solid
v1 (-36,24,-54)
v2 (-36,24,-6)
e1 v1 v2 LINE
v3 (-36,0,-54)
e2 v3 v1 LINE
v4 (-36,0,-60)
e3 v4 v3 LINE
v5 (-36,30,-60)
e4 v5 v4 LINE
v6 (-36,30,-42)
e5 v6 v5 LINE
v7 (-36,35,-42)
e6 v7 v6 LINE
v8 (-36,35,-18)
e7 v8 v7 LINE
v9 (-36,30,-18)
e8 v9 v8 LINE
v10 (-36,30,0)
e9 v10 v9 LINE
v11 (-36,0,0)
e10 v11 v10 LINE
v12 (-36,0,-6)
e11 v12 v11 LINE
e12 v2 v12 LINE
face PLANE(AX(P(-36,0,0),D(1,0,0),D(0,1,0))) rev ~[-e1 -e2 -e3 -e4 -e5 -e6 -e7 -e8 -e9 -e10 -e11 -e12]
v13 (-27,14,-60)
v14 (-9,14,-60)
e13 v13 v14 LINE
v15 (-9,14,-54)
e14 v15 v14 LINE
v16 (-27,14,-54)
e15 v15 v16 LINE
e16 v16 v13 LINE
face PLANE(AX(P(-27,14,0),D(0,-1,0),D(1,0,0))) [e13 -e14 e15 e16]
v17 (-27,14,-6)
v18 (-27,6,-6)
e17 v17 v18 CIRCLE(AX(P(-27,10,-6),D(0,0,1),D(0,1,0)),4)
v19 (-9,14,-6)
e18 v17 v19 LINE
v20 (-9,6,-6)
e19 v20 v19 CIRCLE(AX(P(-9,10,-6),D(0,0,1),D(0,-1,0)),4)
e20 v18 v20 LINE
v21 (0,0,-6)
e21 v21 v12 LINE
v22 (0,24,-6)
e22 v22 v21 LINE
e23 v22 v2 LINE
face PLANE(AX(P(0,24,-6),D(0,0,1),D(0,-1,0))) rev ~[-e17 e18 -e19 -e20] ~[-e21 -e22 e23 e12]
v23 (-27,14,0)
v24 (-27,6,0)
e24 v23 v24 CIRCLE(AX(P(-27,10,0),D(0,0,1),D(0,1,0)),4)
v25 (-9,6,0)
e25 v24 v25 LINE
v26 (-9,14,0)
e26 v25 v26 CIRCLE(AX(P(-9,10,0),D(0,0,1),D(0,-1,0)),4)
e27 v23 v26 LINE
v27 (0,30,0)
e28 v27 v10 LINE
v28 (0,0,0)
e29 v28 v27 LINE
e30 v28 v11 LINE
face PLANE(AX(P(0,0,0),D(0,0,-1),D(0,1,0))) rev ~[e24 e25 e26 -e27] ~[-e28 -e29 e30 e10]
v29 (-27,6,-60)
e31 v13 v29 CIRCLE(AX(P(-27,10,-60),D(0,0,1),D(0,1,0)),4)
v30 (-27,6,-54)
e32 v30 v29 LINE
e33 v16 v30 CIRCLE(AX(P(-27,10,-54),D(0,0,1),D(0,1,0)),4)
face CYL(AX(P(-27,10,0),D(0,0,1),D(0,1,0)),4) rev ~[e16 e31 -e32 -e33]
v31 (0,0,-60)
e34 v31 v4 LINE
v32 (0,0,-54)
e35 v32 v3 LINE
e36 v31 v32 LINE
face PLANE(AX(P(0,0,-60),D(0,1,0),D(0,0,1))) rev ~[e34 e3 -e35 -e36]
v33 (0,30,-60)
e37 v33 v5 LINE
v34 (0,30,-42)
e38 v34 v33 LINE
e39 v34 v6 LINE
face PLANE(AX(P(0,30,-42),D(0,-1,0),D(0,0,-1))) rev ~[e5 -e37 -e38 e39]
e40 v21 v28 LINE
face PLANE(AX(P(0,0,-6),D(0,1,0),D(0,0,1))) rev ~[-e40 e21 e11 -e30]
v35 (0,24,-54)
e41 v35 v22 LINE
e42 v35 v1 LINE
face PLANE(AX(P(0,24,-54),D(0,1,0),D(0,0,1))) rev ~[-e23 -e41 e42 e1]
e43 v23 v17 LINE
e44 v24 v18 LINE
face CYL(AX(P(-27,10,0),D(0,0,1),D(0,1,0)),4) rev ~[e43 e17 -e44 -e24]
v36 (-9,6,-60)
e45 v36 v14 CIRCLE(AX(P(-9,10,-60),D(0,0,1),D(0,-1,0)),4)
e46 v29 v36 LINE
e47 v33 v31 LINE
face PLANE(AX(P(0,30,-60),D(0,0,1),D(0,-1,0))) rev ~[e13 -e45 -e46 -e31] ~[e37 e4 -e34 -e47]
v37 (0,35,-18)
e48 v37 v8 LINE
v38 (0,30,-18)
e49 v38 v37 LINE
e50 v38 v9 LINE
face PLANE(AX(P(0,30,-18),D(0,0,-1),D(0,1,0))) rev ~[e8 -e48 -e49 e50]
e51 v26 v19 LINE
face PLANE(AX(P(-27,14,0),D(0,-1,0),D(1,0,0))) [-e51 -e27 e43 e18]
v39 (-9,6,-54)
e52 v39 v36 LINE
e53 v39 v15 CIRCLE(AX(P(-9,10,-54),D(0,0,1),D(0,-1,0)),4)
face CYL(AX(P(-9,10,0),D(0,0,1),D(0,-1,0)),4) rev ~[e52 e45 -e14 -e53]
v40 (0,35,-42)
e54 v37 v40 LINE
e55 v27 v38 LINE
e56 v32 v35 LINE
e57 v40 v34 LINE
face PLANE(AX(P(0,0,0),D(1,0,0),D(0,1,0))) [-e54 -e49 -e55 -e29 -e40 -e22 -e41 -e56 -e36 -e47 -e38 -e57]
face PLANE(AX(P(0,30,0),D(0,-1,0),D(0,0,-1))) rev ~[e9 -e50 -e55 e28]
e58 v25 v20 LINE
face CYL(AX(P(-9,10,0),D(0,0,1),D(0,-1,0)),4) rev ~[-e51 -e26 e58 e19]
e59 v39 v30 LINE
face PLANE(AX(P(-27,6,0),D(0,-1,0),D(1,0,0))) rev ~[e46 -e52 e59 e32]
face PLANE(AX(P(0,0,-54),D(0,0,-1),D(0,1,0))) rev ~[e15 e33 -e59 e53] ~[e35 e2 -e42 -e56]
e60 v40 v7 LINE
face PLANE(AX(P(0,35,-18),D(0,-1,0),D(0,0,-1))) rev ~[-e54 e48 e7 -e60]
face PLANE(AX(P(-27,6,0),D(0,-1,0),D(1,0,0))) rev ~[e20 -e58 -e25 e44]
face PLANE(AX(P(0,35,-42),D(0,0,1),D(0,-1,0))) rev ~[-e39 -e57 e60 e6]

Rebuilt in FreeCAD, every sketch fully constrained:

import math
import FreeCAD as App
import Part
import Sketcher

V = App.Vector
Q = App.Units.Quantity


def add_polygon(sketch, points):
    """Adds a closed chain of lines whose ends are joined by coincident constraints."""
    first, n = sketch.GeometryCount, len(points)
    for a, b in zip(points, points[1:] + points[:1]):
        sketch.addGeometry(Part.LineSegment(App.Vector(*a, 0), App.Vector(*b, 0)), False)
    for i in range(n):
        sketch.addConstraint(Sketcher.Constraint("Coincident", first + i, 2, first + (i + 1) % n, 1))

doc = App.newDocument("Part")
body = doc.addObject("PartDesign::Body", "Body")

sketch1 = body.newObject("Sketcher::SketchObject", "Sketch")
sketch1.AttachmentSupport = (doc.getObject("YZ_Plane"), [""])
sketch1.MapMode = "FlatFace"
add_polygon(sketch1, [(30, 0), (0, 0), (0, -6), (24, -6), (24, -54), (0, -54), (0, -60), (30, -60), (30, -42), (35, -42), (35, -18), (30, -18)])
sketch1.addConstraint([
    Sketcher.Constraint("Horizontal", 0),
    Sketcher.Constraint("Vertical", 1),
    Sketcher.Constraint("Horizontal", 2),
    Sketcher.Constraint("Vertical", 3),
    Sketcher.Constraint("Horizontal", 4),
    Sketcher.Constraint("Vertical", 5),
    Sketcher.Constraint("Horizontal", 6),
    Sketcher.Constraint("Vertical", 7),
    Sketcher.Constraint("Horizontal", 8),
    Sketcher.Constraint("Vertical", 9),
    Sketcher.Constraint("Horizontal", 10),
    Sketcher.Constraint("Vertical", 11),
    Sketcher.Constraint("Coincident", 0, 2, -1, 1),
    Sketcher.Constraint("PointOnObject", 4, 2, -2),
    Sketcher.Constraint("Vertical", 7, 2, 10, 2),
    Sketcher.Constraint("Equal", 1, 5),
    Sketcher.Constraint("Equal", 4, 9),
    Sketcher.Constraint("Equal", 7, 11),
    Sketcher.Constraint("DistanceX", 0, 2, 0, 1, Q("30 mm")),
    Sketcher.Constraint("DistanceX", 2, 1, 2, 2, Q("24 mm")),
    Sketcher.Constraint("DistanceY", 1, 2, 1, 1, Q("6 mm")),
    Sketcher.Constraint("DistanceY", 7, 1, 7, 2, Q("18 mm")),
    Sketcher.Constraint("DistanceX", -1, 1, 8, 2, Q("35 mm")),
])
pad1 = body.newObject("PartDesign::Pad", "Pad")
pad1.Profile = sketch1
pad1.Length = 36
pad1.Reversed = True

sketch2 = body.newObject("Sketcher::SketchObject", "Sketch001")
sketch2.AttachmentSupport = (doc.getObject("XY_Plane"), [""])
sketch2.MapMode = "FlatFace"
sketch2.addGeometry([
    Part.LineSegment(V(-27, 6, 0), V(-9, 6, 0)),
    Part.ArcOfCircle(Part.Circle(V(-9, 10, 0), V(0, 0, 1), 4), math.radians(-90), math.radians(90)),
    Part.LineSegment(V(-9, 14, 0), V(-27, 14, 0)),
    Part.ArcOfCircle(Part.Circle(V(-27, 10, 0), V(0, 0, 1), 4), math.radians(90), math.radians(270)),
], False)
sketch2.addConstraint([
    Sketcher.Constraint("Tangent", 0, 2, 1, 1),
    Sketcher.Constraint("Tangent", 1, 2, 2, 1),
    Sketcher.Constraint("Tangent", 2, 2, 3, 1),
    Sketcher.Constraint("Tangent", 3, 2, 0, 1),
    Sketcher.Constraint("Horizontal", 0),
    Sketcher.Constraint("Horizontal", 2),
    Sketcher.Constraint("Radius", 1, Q("4 mm")),
    Sketcher.Constraint("DistanceX", 1, 3, -1, 1, Q("9 mm")),
    Sketcher.Constraint("DistanceY", -1, 1, 1, 3, Q("10 mm")),
    Sketcher.Constraint("DistanceX", 0, 1, 0, 2, Q("18 mm")),
])
pocket1 = body.newObject("PartDesign::Pocket", "Pocket")
pocket1.Profile = sketch2
pocket1.Type = "ThroughAll"

doc.recompute()
